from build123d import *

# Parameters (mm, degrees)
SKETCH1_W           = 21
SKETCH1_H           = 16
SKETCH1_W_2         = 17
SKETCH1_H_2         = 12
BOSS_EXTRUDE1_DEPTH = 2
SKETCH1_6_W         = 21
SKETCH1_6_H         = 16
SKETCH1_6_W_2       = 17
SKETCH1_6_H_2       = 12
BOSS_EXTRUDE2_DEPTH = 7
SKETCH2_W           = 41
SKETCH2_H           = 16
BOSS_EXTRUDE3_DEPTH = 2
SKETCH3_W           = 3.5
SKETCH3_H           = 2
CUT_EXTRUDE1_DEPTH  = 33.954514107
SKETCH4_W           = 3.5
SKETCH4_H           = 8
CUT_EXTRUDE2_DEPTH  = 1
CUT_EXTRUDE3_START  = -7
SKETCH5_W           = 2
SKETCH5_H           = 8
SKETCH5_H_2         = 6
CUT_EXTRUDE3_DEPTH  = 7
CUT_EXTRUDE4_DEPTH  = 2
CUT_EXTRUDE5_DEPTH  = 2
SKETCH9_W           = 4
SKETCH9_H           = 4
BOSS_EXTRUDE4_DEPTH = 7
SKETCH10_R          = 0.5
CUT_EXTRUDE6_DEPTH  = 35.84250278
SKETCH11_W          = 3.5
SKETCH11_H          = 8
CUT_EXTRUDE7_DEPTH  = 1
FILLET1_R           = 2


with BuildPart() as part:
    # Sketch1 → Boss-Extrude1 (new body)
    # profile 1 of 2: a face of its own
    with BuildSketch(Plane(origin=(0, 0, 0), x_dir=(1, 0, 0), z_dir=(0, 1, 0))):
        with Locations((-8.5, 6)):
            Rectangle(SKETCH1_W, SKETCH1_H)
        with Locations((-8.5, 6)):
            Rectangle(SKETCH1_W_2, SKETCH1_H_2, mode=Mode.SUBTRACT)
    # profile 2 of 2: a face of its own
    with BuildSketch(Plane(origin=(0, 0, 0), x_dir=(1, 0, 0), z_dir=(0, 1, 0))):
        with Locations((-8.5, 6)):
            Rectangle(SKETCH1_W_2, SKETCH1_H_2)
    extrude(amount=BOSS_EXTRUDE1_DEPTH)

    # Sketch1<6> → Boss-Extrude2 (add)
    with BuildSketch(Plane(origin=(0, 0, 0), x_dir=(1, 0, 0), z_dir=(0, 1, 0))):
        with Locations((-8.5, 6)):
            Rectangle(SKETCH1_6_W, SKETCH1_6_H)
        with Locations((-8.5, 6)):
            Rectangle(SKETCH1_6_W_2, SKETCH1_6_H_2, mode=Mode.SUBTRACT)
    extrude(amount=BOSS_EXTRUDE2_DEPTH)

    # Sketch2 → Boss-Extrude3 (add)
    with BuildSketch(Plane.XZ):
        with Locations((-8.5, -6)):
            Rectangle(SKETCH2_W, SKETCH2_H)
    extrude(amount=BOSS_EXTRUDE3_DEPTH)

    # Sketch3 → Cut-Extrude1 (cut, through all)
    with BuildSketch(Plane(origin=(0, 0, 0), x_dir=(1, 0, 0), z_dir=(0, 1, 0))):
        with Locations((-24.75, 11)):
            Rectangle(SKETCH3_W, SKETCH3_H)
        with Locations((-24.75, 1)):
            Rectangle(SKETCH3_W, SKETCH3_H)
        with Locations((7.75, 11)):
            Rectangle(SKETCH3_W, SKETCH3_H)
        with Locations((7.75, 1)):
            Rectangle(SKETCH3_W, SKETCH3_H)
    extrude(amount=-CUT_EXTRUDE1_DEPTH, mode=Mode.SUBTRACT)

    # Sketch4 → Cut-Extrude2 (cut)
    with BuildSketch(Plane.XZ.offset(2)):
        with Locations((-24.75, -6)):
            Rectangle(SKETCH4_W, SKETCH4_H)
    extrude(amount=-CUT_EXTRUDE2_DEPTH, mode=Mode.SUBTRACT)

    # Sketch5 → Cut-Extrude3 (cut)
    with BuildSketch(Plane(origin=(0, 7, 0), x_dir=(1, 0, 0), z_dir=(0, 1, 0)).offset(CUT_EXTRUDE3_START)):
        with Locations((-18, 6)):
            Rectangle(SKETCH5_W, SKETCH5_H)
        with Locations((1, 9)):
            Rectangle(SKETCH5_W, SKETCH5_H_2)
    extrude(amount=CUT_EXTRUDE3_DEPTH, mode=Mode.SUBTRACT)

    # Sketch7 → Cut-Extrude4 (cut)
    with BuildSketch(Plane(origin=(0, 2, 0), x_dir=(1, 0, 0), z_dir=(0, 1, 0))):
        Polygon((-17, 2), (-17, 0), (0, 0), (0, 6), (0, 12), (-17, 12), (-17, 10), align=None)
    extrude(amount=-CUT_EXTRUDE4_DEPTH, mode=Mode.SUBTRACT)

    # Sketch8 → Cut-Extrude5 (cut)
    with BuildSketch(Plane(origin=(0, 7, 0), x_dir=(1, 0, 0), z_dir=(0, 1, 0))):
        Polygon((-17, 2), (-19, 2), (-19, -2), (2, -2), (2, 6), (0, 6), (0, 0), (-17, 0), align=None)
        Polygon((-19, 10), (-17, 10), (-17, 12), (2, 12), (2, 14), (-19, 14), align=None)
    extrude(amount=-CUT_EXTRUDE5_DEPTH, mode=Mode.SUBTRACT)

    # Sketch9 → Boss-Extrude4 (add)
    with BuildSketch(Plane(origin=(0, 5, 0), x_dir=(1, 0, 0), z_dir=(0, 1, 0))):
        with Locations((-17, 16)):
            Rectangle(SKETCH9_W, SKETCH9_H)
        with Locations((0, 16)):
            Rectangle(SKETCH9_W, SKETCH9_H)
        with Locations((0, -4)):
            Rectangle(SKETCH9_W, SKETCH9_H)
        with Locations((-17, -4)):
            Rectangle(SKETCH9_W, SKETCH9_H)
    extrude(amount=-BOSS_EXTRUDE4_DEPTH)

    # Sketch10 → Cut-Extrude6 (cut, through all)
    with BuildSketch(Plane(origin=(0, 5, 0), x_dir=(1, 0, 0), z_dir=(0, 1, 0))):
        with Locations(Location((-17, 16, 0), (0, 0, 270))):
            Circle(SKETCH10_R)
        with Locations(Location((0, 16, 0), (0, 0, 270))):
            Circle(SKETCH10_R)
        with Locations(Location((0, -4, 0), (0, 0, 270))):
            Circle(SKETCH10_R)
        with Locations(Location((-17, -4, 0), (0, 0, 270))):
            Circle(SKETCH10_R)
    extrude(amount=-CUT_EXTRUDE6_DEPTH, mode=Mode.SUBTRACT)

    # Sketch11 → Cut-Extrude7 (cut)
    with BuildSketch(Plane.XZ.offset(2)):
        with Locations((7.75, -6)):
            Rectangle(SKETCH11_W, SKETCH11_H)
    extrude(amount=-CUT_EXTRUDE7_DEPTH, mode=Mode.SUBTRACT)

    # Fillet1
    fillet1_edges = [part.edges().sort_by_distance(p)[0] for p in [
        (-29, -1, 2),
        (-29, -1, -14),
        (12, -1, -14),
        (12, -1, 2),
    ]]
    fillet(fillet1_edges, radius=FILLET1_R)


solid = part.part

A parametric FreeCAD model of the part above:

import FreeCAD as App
import Part
import Sketcher
Q = App.Units.Quantity


def edges_at(feature, points):
    """Names of the edges that pass closest to the given points."""
    edges = feature.Shape.Edges
    near = lambda p: min(range(len(edges)), key=lambda i: edges[i].distToShape(Part.Vertex(*p))[0])
    return sorted({f"Edge{near(p) + 1}" for p in points})


def add_polygon(sketch, points):
    """Adds a closed chain of lines whose ends are joined by coincident constraints."""
    first, n = sketch.GeometryCount, len(points)
    for a, b in zip(points, points[1:] + points[:1]):
        sketch.addGeometry(Part.LineSegment(App.Vector(*a, 0), App.Vector(*b, 0)), False)
    for i in range(n):
        sketch.addConstraint(Sketcher.Constraint("Coincident", first + i, 2, first + (i + 1) % n, 1))

doc = App.newDocument("Part")
body = doc.addObject("PartDesign::Body", "Body")

sketch1 = body.newObject("Sketcher::SketchObject", "Sketch")
sketch1.AttachmentSupport = (doc.getObject("XZ_Plane"), [""])
sketch1.MapMode = "FlatFace"
add_polygon(sketch1, [(-19, -14), (-19, 2), (2, 2), (2, -14)])
sketch1.addConstraint([
    Sketcher.Constraint("Vertical", 0),
    Sketcher.Constraint("Horizontal", 1),
    Sketcher.Constraint("Vertical", 2),
    Sketcher.Constraint("Horizontal", 3),
    Sketcher.Constraint("DistanceX", 1, 1, 1, 2, Q("21 mm")),
    Sketcher.Constraint("DistanceY", 0, 1, 0, 2, Q("16 mm")),
    Sketcher.Constraint("DistanceX", 0, 2, -1, 1, Q("19 mm")),
    Sketcher.Constraint("DistanceY", -1, 1, 0, 2, Q("2 mm")),
])
pad1 = body.newObject("PartDesign::Pad", "Pad")
pad1.Profile = sketch1
pad1.Length = 2
pad1.Reversed = True

sketch2 = body.newObject("Sketcher::SketchObject", "Sketch001")
sketch2.AttachmentSupport = (doc.getObject("XZ_Plane"), [""])
sketch2.MapMode = "FlatFace"
add_polygon(sketch2, [(-19, -14), (-19, 2), (2, 2), (2, -14)])
add_polygon(sketch2, [(0, 0), (-17, 0), (-17, -12), (0, -12)])
sketch2.addConstraint([
    Sketcher.Constraint("Vertical", 0),
    Sketcher.Constraint("Horizontal", 1),
    Sketcher.Constraint("Vertical", 2),
    Sketcher.Constraint("Horizontal", 3),
    Sketcher.Constraint("Horizontal", 4),
    Sketcher.Constraint("Vertical", 5),
    Sketcher.Constraint("Horizontal", 6),
    Sketcher.Constraint("Vertical", 7),
    Sketcher.Constraint("Coincident", 7, 2, -1, 1),
    Sketcher.Constraint("DistanceX", 1, 1, 1, 2, Q("21 mm")),
    Sketcher.Constraint("DistanceX", 4, 2, 4, 1, Q("17 mm")),
    Sketcher.Constraint("DistanceY", 0, 1, 0, 2, Q("16 mm")),
    Sketcher.Constraint("DistanceY", 5, 2, 5, 1, Q("12 mm")),
    Sketcher.Constraint("DistanceX", 0, 2, -1, 1, Q("19 mm")),
    Sketcher.Constraint("DistanceY", -1, 1, 0, 2, Q("2 mm")),
])
pad2 = body.newObject("PartDesign::Pad", "Pad001")
pad2.Profile = sketch2
pad2.Length = 7
pad2.Reversed = True

sketch3 = body.newObject("Sketcher::SketchObject", "Sketch002")
sketch3.AttachmentSupport = (doc.getObject("XZ_Plane"), [""])
sketch3.MapMode = "FlatFace"
add_polygon(sketch3, [(-29, 2), (-29, -14), (12, -14), (12, 2)])
sketch3.addConstraint([
    Sketcher.Constraint("Vertical", 0),
    Sketcher.Constraint("Horizontal", 1),
    Sketcher.Constraint("Vertical", 2),
    Sketcher.Constraint("Horizontal", 3),
    Sketcher.Constraint("DistanceX", 1, 1, 1, 2, Q("41 mm")),
    Sketcher.Constraint("DistanceY", 0, 2, 0, 1, Q("16 mm")),
    Sketcher.Constraint("DistanceX", 0, 2, -1, 1, Q("29 mm")),
    Sketcher.Constraint("DistanceY", 0, 2, -1, 1, Q("14 mm")),
])
pad3 = body.newObject("PartDesign::Pad", "Pad002")
pad3.Profile = sketch3
pad3.Length = 2

sketch4 = body.newObject("Sketcher::SketchObject", "Sketch003")
sketch4.AttachmentSupport = (doc.getObject("XZ_Plane"), [""])
sketch4.MapMode = "FlatFace"
add_polygon(sketch4, [(-26.5, -12), (-26.5, -10), (-23, -10), (-23, -12)])
add_polygon(sketch4, [(-26.5, -2), (-26.5, 0), (-23, 0), (-23, -2)])
add_polygon(sketch4, [(6, -12), (6, -10), (9.5, -10), (9.5, -12)])
add_polygon(sketch4, [(6, -2), (6, 0), (9.5, 0), (9.5, -2)])
sketch4.addConstraint([
    Sketcher.Constraint("Vertical", 0),
    Sketcher.Constraint("Horizontal", 1),
    Sketcher.Constraint("Vertical", 2),
    Sketcher.Constraint("Horizontal", 3),
    Sketcher.Constraint("Vertical", 4),
    Sketcher.Constraint("Horizontal", 5),
    Sketcher.Constraint("Vertical", 6),
    Sketcher.Constraint("Horizontal", 7),
    Sketcher.Constraint("Vertical", 8),
    Sketcher.Constraint("Horizontal", 9),
    Sketcher.Constraint("Vertical", 10),
    Sketcher.Constraint("Horizontal", 11),
    Sketcher.Constraint("Vertical", 12),
    Sketcher.Constraint("Horizontal", 13),
    Sketcher.Constraint("Vertical", 14),
    Sketcher.Constraint("Horizontal", 15),
    Sketcher.Constraint("PointOnObject", 4, 2, -1),
    Sketcher.Constraint("PointOnObject", 12, 2, -1),
    Sketcher.Constraint("Horizontal", 1, 2, 8, 2),
    Sketcher.Constraint("Horizontal", 3, 2, 10, 2),
    Sketcher.Constraint("Horizontal", 7, 2, 14, 2),
    Sketcher.Constraint("Vertical", 3, 2, 4, 2),
    Sketcher.Constraint("Vertical", 2, 2, 5, 2),
    Sketcher.Constraint("Vertical", 11, 2, 12, 2),
    Sketcher.Constraint("Vertical", 10, 2, 13, 2),
    Sketcher.Constraint("Equal", 7, 9),
    Sketcher.Constraint("Equal", 2, 4),
    Sketcher.Constraint("DistanceY", 0, 1, 0, 2, Q("2 mm")),
    Sketcher.Constraint("DistanceX", 1, 1, 1, 2, Q("3.5 mm")),
    Sketcher.Constraint("DistanceY", 0, 2, -1, 1, Q("10 mm")),
    Sketcher.Constraint("DistanceX", 1, 2, -1, 1, Q("23 mm")),
    Sketcher.Constraint("DistanceX", -1, 1, 8, 2, Q("6 mm")),
])
pocket1 = body.newObject("PartDesign::Pocket", "Pocket")
pocket1.Profile = sketch4
pocket1.Type = "ThroughAll"
pocket1.Reversed = True

sketch5 = body.newObject("Sketcher::SketchObject", "Sketch004")
sketch5.AttachmentSupport = (doc.getObject("XZ_Plane"), [""])
sketch5.MapMode = "FlatFace"
sketch5.AttachmentOffset = App.Placement(App.Vector(0, 0, 2), App.Rotation())
add_polygon(sketch5, [(-26.5, -2), (-26.5, -10), (-23, -10), (-23, -2)])
sketch5.addConstraint([
    Sketcher.Constraint("Vertical", 0),
    Sketcher.Constraint("Horizontal", 1),
    Sketcher.Constraint("Vertical", 2),
    Sketcher.Constraint("Horizontal", 3),
    Sketcher.Constraint("DistanceY", 0, 2, 0, 1, Q("8 mm")),
    Sketcher.Constraint("DistanceX", 1, 1, 1, 2, Q("3.5 mm")),
    Sketcher.Constraint("DistanceY", 0, 2, -1, 1, Q("10 mm")),
    Sketcher.Constraint("DistanceX", 1, 2, -1, 1, Q("23 mm")),
])
pocket2 = body.newObject("PartDesign::Pocket", "Pocket001")
pocket2.Profile = sketch5
pocket2.Length = 1

sketch6 = body.newObject("Sketcher::SketchObject", "Sketch005")
sketch6.AttachmentSupport = (doc.getObject("XZ_Plane"), [""])
sketch6.MapMode = "FlatFace"
add_polygon(sketch6, [(-19, -10), (-19, -2), (-17, -2), (-17, -10)])
add_polygon(sketch6, [(0, -12), (0, -6), (2, -6), (2, -12)])
sketch6.addConstraint([
    Sketcher.Constraint("Vertical", 0),
    Sketcher.Constraint("Horizontal", 1),
    Sketcher.Constraint("Vertical", 2),
    Sketcher.Constraint("Horizontal", 3),
    Sketcher.Constraint("Vertical", 4),
    Sketcher.Constraint("Horizontal", 5),
    Sketcher.Constraint("Vertical", 6),
    Sketcher.Constraint("Horizontal", 7),
    Sketcher.Constraint("PointOnObject", 4, 2, -2),
    Sketcher.Constraint("Equal", 3, 5),
    Sketcher.Constraint("DistanceX", 1, 1, 1, 2, Q("2 mm")),
    Sketcher.Constraint("DistanceY", 0, 1, 0, 2, Q("8 mm")),
    Sketcher.Constraint("DistanceY", 4, 1, 4, 2, Q("6 mm")),
    Sketcher.Constraint("DistanceX", 0, 2, -1, 1, Q("19 mm")),
    Sketcher.Constraint("DistanceY", 0, 2, -1, 1, Q("2 mm")),
    Sketcher.Constraint("DistanceY", 4, 2, -1, 1, Q("6 mm")),
])
pocket3 = body.newObject("PartDesign::Pocket", "Pocket002")
pocket3.Profile = sketch6
pocket3.Length = 7

sketch7 = body.newObject("Sketcher::SketchObject", "Sketch006")
sketch7.AttachmentSupport = (doc.getObject("XZ_Plane"), [""])
sketch7.MapMode = "FlatFace"
sketch7.AttachmentOffset = App.Placement(App.Vector(0, 0, -2), App.Rotation())
add_polygon(sketch7, [(-17, 0), (0, 0), (0, -12), (-17, -12)])
sketch7.addConstraint([
    Sketcher.Constraint("Horizontal", 0),
    Sketcher.Constraint("Vertical", 1),
    Sketcher.Constraint("Horizontal", 2),
    Sketcher.Constraint("Vertical", 3),
    Sketcher.Constraint("Coincident", 0, 2, -1, 1),
    Sketcher.Constraint("DistanceX", 0, 1, 0, 2, Q("17 mm")),
    Sketcher.Constraint("DistanceY", 1, 2, 1, 1, Q("12 mm")),
])
pocket4 = body.newObject("PartDesign::Pocket", "Pocket003")
pocket4.Profile = sketch7
pocket4.Length = 2
pocket4.Reversed = True

sketch8 = body.newObject("Sketcher::SketchObject", "Sketch007")
sketch8.AttachmentSupport = (doc.getObject("XZ_Plane"), [""])
sketch8.MapMode = "FlatFace"
sketch8.AttachmentOffset = App.Placement(App.Vector(0, 0, -7), App.Rotation())
add_polygon(sketch8, [(-17, -2), (-19, -2), (-19, 2), (2, 2), (2, -6), (0, -6), (0, 0), (-17, 0)])
add_polygon(sketch8, [(-19, -10), (-17, -10), (-17, -12), (2, -12), (2, -14), (-19, -14)])
sketch8.addConstraint([
    Sketcher.Constraint("Horizontal", 0),
    Sketcher.Constraint("Vertical", 1),
    Sketcher.Constraint("Horizontal", 2),
    Sketcher.Constraint("Vertical", 3),
    Sketcher.Constraint("Horizontal", 4),
    Sketcher.Constraint("Vertical", 5),
    Sketcher.Constraint("Horizontal", 6),
    Sketcher.Constraint("Vertical", 7),
    Sketcher.Constraint("Horizontal", 8),
    Sketcher.Constraint("Vertical", 9),
    Sketcher.Constraint("Horizontal", 10),
    Sketcher.Constraint("Vertical", 11),
    Sketcher.Constraint("Horizontal", 12),
    Sketcher.Constraint("Vertical", 13),
    Sketcher.Constraint("Coincident", 5, 2, -1, 1),
    Sketcher.Constraint("Vertical", 7, 2, 8, 2),
    Sketcher.Constraint("Vertical", 3, 2, 10, 2),
    Sketcher.Constraint("Vertical", 1, 2, 12, 2),
    Sketcher.Constraint("Equal", 0, 4),
    Sketcher.Constraint("Equal", 8, 7),
    Sketcher.Constraint("Equal", 7, 9),
    Sketcher.Constraint("Equal", 9, 11),
    Sketcher.Constraint("Equal", 1, 13),
    Sketcher.Constraint("DistanceX", 0, 2, 0, 1, Q("2 mm")),
    Sketcher.Constraint("DistanceX", 2, 1, 2, 2, Q("21 mm")),
    Sketcher.Constraint("DistanceY", 3, 2, 3, 1, Q("8 mm")),
    Sketcher.Constraint("DistanceY", 8, 2, -1, 1, Q("10 mm")),
])
pocket5 = body.newObject("PartDesign::Pocket", "Pocket004")
pocket5.Profile = sketch8
pocket5.Length = 2
pocket5.Reversed = True

sketch9 = body.newObject("Sketcher::SketchObject", "Sketch008")
sketch9.AttachmentSupport = (doc.getObject("XZ_Plane"), [""])
sketch9.MapMode = "FlatFace"
sketch9.AttachmentOffset = App.Placement(App.Vector(0, 0, -5), App.Rotation())
add_polygon(sketch9, [(-19, -18), (-19, -14), (-15, -14), (-15, -18)])
add_polygon(sketch9, [(-2, -18), (-2, -14), (2, -14), (2, -18)])
add_polygon(sketch9, [(-2, 2), (-2, 6), (2, 6), (2, 2)])
add_polygon(sketch9, [(-19, 2), (-19, 6), (-15, 6), (-15, 2)])
sketch9.addConstraint([
    Sketcher.Constraint("Vertical", 0),
    Sketcher.Constraint("Horizontal", 1),
    Sketcher.Constraint("Vertical", 2),
    Sketcher.Constraint("Horizontal", 3),
    Sketcher.Constraint("Vertical", 4),
    Sketcher.Constraint("Horizontal", 5),
    Sketcher.Constraint("Vertical", 6),
    Sketcher.Constraint("Horizontal", 7),
    Sketcher.Constraint("Vertical", 8),
    Sketcher.Constraint("Horizontal", 9),
    Sketcher.Constraint("Vertical", 10),
    Sketcher.Constraint("Horizontal", 11),
    Sketcher.Constraint("Vertical", 12),
    Sketcher.Constraint("Horizontal", 13),
    Sketcher.Constraint("Vertical", 14),
    Sketcher.Constraint("Horizontal", 15),
    Sketcher.Constraint("Horizontal", 1, 2, 4, 2),
    Sketcher.Constraint("Horizontal", 3, 2, 6, 2),
    Sketcher.Constraint("Horizontal", 9, 2, 12, 2),
    Sketcher.Constraint("Horizontal", 11, 2, 14, 2),
    Sketcher.Constraint("Vertical", 7, 2, 8, 2),
    Sketcher.Constraint("Vertical", 6, 2, 9, 2),
    Sketcher.Constraint("Vertical", 3, 2, 12, 2),
    Sketcher.Constraint("Vertical", 2, 2, 13, 2),
    Sketcher.Constraint("Equal", 3, 5),
    Sketcher.Constraint("Equal", 15, 0),
    Sketcher.Constraint("Equal", 6, 8),
    Sketcher.Constraint("DistanceX", 1, 1, 1, 2, Q("4 mm")),
    Sketcher.Constraint("DistanceX", 0, 2, -1, 1, Q("19 mm")),
    Sketcher.Constraint("DistanceY", 0, 2, -1, 1, Q("14 mm")),
    Sketcher.Constraint("DistanceX", 4, 2, -1, 1, Q("2 mm")),
    Sketcher.Constraint("DistanceY", -1, 1, 8, 2, Q("6 mm")),
])
pad4 = body.newObject("PartDesign::Pad", "Pad003")
pad4.Profile = sketch9
pad4.Length = 7

sketch10 = body.newObject("Sketcher::SketchObject", "Sketch009")
sketch10.AttachmentSupport = (doc.getObject("XZ_Plane"), [""])
sketch10.MapMode = "FlatFace"
sketch10.AttachmentOffset = App.Placement(App.Vector(0, 0, -5), App.Rotation())
sketch10.addGeometry([
    Part.Circle(App.Vector(-17, -16, 0), App.Vector(0, 0, 1), 0.5),
    Part.Circle(App.Vector(0, -16, 0), App.Vector(0, 0, 1), 0.5),
    Part.Circle(App.Vector(0, 4, 0), App.Vector(0, 0, 1), 0.5),
    Part.Circle(App.Vector(-17, 4, 0), App.Vector(0, 0, 1), 0.5),
], False)
sketch10.addConstraint([
    Sketcher.Constraint("Equal", 0, 1),
    Sketcher.Constraint("Equal", 1, 2),
    Sketcher.Constraint("Equal", 2, 3),
    Sketcher.Constraint("PointOnObject", 1, 3, -2),
    Sketcher.Constraint("PointOnObject", 2, 3, -2),
    Sketcher.Constraint("Horizontal", 0, 3, 1, 3),
    Sketcher.Constraint("Horizontal", 2, 3, 3, 3),
    Sketcher.Constraint("Vertical", 0, 3, 3, 3),
    Sketcher.Constraint("Diameter", 0, Q("1 mm")),
    Sketcher.Constraint("DistanceX", 0, 3, -1, 1, Q("17 mm")),
    Sketcher.Constraint("DistanceY", 0, 3, -1, 1, Q("16 mm")),
    Sketcher.Constraint("DistanceY", -1, 1, 2, 3, Q("4 mm")),
])
pocket6 = body.newObject("PartDesign::Pocket", "Pocket005")
pocket6.Profile = sketch10
pocket6.Type = "ThroughAll"
pocket6.Reversed = True

sketch11 = body.newObject("Sketcher::SketchObject", "Sketch010")
sketch11.AttachmentSupport = (doc.getObject("XZ_Plane"), [""])
sketch11.MapMode = "FlatFace"
sketch11.AttachmentOffset = App.Placement(App.Vector(0, 0, 2), App.Rotation())
add_polygon(sketch11, [(6, -2), (6, -10), (9.5, -10), (9.5, -2)])
sketch11.addConstraint([
    Sketcher.Constraint("Vertical", 0),
    Sketcher.Constraint("Horizontal", 1),
    Sketcher.Constraint("Vertical", 2),
    Sketcher.Constraint("Horizontal", 3),
    Sketcher.Constraint("DistanceY", 0, 2, 0, 1, Q("8 mm")),
    Sketcher.Constraint("DistanceX", 1, 1, 1, 2, Q("3.5 mm")),
    Sketcher.Constraint("DistanceX", -1, 1, 0, 2, Q("6 mm")),
    Sketcher.Constraint("DistanceY", 0, 2, -1, 1, Q("10 mm")),
])
pocket7 = body.newObject("PartDesign::Pocket", "Pocket006")
pocket7.Profile = sketch11
pocket7.Length = 1
doc.recompute()

fillet = body.newObject("PartDesign::Fillet", "Fillet")
fillet.Base = (pocket7, edges_at(pocket7, [
    (-29, -1, 2),
    (-29, -1, -14),
    (12, -1, -14),
    (12, -1, 2),
]))
fillet.Radius = 2

doc.recompute()
